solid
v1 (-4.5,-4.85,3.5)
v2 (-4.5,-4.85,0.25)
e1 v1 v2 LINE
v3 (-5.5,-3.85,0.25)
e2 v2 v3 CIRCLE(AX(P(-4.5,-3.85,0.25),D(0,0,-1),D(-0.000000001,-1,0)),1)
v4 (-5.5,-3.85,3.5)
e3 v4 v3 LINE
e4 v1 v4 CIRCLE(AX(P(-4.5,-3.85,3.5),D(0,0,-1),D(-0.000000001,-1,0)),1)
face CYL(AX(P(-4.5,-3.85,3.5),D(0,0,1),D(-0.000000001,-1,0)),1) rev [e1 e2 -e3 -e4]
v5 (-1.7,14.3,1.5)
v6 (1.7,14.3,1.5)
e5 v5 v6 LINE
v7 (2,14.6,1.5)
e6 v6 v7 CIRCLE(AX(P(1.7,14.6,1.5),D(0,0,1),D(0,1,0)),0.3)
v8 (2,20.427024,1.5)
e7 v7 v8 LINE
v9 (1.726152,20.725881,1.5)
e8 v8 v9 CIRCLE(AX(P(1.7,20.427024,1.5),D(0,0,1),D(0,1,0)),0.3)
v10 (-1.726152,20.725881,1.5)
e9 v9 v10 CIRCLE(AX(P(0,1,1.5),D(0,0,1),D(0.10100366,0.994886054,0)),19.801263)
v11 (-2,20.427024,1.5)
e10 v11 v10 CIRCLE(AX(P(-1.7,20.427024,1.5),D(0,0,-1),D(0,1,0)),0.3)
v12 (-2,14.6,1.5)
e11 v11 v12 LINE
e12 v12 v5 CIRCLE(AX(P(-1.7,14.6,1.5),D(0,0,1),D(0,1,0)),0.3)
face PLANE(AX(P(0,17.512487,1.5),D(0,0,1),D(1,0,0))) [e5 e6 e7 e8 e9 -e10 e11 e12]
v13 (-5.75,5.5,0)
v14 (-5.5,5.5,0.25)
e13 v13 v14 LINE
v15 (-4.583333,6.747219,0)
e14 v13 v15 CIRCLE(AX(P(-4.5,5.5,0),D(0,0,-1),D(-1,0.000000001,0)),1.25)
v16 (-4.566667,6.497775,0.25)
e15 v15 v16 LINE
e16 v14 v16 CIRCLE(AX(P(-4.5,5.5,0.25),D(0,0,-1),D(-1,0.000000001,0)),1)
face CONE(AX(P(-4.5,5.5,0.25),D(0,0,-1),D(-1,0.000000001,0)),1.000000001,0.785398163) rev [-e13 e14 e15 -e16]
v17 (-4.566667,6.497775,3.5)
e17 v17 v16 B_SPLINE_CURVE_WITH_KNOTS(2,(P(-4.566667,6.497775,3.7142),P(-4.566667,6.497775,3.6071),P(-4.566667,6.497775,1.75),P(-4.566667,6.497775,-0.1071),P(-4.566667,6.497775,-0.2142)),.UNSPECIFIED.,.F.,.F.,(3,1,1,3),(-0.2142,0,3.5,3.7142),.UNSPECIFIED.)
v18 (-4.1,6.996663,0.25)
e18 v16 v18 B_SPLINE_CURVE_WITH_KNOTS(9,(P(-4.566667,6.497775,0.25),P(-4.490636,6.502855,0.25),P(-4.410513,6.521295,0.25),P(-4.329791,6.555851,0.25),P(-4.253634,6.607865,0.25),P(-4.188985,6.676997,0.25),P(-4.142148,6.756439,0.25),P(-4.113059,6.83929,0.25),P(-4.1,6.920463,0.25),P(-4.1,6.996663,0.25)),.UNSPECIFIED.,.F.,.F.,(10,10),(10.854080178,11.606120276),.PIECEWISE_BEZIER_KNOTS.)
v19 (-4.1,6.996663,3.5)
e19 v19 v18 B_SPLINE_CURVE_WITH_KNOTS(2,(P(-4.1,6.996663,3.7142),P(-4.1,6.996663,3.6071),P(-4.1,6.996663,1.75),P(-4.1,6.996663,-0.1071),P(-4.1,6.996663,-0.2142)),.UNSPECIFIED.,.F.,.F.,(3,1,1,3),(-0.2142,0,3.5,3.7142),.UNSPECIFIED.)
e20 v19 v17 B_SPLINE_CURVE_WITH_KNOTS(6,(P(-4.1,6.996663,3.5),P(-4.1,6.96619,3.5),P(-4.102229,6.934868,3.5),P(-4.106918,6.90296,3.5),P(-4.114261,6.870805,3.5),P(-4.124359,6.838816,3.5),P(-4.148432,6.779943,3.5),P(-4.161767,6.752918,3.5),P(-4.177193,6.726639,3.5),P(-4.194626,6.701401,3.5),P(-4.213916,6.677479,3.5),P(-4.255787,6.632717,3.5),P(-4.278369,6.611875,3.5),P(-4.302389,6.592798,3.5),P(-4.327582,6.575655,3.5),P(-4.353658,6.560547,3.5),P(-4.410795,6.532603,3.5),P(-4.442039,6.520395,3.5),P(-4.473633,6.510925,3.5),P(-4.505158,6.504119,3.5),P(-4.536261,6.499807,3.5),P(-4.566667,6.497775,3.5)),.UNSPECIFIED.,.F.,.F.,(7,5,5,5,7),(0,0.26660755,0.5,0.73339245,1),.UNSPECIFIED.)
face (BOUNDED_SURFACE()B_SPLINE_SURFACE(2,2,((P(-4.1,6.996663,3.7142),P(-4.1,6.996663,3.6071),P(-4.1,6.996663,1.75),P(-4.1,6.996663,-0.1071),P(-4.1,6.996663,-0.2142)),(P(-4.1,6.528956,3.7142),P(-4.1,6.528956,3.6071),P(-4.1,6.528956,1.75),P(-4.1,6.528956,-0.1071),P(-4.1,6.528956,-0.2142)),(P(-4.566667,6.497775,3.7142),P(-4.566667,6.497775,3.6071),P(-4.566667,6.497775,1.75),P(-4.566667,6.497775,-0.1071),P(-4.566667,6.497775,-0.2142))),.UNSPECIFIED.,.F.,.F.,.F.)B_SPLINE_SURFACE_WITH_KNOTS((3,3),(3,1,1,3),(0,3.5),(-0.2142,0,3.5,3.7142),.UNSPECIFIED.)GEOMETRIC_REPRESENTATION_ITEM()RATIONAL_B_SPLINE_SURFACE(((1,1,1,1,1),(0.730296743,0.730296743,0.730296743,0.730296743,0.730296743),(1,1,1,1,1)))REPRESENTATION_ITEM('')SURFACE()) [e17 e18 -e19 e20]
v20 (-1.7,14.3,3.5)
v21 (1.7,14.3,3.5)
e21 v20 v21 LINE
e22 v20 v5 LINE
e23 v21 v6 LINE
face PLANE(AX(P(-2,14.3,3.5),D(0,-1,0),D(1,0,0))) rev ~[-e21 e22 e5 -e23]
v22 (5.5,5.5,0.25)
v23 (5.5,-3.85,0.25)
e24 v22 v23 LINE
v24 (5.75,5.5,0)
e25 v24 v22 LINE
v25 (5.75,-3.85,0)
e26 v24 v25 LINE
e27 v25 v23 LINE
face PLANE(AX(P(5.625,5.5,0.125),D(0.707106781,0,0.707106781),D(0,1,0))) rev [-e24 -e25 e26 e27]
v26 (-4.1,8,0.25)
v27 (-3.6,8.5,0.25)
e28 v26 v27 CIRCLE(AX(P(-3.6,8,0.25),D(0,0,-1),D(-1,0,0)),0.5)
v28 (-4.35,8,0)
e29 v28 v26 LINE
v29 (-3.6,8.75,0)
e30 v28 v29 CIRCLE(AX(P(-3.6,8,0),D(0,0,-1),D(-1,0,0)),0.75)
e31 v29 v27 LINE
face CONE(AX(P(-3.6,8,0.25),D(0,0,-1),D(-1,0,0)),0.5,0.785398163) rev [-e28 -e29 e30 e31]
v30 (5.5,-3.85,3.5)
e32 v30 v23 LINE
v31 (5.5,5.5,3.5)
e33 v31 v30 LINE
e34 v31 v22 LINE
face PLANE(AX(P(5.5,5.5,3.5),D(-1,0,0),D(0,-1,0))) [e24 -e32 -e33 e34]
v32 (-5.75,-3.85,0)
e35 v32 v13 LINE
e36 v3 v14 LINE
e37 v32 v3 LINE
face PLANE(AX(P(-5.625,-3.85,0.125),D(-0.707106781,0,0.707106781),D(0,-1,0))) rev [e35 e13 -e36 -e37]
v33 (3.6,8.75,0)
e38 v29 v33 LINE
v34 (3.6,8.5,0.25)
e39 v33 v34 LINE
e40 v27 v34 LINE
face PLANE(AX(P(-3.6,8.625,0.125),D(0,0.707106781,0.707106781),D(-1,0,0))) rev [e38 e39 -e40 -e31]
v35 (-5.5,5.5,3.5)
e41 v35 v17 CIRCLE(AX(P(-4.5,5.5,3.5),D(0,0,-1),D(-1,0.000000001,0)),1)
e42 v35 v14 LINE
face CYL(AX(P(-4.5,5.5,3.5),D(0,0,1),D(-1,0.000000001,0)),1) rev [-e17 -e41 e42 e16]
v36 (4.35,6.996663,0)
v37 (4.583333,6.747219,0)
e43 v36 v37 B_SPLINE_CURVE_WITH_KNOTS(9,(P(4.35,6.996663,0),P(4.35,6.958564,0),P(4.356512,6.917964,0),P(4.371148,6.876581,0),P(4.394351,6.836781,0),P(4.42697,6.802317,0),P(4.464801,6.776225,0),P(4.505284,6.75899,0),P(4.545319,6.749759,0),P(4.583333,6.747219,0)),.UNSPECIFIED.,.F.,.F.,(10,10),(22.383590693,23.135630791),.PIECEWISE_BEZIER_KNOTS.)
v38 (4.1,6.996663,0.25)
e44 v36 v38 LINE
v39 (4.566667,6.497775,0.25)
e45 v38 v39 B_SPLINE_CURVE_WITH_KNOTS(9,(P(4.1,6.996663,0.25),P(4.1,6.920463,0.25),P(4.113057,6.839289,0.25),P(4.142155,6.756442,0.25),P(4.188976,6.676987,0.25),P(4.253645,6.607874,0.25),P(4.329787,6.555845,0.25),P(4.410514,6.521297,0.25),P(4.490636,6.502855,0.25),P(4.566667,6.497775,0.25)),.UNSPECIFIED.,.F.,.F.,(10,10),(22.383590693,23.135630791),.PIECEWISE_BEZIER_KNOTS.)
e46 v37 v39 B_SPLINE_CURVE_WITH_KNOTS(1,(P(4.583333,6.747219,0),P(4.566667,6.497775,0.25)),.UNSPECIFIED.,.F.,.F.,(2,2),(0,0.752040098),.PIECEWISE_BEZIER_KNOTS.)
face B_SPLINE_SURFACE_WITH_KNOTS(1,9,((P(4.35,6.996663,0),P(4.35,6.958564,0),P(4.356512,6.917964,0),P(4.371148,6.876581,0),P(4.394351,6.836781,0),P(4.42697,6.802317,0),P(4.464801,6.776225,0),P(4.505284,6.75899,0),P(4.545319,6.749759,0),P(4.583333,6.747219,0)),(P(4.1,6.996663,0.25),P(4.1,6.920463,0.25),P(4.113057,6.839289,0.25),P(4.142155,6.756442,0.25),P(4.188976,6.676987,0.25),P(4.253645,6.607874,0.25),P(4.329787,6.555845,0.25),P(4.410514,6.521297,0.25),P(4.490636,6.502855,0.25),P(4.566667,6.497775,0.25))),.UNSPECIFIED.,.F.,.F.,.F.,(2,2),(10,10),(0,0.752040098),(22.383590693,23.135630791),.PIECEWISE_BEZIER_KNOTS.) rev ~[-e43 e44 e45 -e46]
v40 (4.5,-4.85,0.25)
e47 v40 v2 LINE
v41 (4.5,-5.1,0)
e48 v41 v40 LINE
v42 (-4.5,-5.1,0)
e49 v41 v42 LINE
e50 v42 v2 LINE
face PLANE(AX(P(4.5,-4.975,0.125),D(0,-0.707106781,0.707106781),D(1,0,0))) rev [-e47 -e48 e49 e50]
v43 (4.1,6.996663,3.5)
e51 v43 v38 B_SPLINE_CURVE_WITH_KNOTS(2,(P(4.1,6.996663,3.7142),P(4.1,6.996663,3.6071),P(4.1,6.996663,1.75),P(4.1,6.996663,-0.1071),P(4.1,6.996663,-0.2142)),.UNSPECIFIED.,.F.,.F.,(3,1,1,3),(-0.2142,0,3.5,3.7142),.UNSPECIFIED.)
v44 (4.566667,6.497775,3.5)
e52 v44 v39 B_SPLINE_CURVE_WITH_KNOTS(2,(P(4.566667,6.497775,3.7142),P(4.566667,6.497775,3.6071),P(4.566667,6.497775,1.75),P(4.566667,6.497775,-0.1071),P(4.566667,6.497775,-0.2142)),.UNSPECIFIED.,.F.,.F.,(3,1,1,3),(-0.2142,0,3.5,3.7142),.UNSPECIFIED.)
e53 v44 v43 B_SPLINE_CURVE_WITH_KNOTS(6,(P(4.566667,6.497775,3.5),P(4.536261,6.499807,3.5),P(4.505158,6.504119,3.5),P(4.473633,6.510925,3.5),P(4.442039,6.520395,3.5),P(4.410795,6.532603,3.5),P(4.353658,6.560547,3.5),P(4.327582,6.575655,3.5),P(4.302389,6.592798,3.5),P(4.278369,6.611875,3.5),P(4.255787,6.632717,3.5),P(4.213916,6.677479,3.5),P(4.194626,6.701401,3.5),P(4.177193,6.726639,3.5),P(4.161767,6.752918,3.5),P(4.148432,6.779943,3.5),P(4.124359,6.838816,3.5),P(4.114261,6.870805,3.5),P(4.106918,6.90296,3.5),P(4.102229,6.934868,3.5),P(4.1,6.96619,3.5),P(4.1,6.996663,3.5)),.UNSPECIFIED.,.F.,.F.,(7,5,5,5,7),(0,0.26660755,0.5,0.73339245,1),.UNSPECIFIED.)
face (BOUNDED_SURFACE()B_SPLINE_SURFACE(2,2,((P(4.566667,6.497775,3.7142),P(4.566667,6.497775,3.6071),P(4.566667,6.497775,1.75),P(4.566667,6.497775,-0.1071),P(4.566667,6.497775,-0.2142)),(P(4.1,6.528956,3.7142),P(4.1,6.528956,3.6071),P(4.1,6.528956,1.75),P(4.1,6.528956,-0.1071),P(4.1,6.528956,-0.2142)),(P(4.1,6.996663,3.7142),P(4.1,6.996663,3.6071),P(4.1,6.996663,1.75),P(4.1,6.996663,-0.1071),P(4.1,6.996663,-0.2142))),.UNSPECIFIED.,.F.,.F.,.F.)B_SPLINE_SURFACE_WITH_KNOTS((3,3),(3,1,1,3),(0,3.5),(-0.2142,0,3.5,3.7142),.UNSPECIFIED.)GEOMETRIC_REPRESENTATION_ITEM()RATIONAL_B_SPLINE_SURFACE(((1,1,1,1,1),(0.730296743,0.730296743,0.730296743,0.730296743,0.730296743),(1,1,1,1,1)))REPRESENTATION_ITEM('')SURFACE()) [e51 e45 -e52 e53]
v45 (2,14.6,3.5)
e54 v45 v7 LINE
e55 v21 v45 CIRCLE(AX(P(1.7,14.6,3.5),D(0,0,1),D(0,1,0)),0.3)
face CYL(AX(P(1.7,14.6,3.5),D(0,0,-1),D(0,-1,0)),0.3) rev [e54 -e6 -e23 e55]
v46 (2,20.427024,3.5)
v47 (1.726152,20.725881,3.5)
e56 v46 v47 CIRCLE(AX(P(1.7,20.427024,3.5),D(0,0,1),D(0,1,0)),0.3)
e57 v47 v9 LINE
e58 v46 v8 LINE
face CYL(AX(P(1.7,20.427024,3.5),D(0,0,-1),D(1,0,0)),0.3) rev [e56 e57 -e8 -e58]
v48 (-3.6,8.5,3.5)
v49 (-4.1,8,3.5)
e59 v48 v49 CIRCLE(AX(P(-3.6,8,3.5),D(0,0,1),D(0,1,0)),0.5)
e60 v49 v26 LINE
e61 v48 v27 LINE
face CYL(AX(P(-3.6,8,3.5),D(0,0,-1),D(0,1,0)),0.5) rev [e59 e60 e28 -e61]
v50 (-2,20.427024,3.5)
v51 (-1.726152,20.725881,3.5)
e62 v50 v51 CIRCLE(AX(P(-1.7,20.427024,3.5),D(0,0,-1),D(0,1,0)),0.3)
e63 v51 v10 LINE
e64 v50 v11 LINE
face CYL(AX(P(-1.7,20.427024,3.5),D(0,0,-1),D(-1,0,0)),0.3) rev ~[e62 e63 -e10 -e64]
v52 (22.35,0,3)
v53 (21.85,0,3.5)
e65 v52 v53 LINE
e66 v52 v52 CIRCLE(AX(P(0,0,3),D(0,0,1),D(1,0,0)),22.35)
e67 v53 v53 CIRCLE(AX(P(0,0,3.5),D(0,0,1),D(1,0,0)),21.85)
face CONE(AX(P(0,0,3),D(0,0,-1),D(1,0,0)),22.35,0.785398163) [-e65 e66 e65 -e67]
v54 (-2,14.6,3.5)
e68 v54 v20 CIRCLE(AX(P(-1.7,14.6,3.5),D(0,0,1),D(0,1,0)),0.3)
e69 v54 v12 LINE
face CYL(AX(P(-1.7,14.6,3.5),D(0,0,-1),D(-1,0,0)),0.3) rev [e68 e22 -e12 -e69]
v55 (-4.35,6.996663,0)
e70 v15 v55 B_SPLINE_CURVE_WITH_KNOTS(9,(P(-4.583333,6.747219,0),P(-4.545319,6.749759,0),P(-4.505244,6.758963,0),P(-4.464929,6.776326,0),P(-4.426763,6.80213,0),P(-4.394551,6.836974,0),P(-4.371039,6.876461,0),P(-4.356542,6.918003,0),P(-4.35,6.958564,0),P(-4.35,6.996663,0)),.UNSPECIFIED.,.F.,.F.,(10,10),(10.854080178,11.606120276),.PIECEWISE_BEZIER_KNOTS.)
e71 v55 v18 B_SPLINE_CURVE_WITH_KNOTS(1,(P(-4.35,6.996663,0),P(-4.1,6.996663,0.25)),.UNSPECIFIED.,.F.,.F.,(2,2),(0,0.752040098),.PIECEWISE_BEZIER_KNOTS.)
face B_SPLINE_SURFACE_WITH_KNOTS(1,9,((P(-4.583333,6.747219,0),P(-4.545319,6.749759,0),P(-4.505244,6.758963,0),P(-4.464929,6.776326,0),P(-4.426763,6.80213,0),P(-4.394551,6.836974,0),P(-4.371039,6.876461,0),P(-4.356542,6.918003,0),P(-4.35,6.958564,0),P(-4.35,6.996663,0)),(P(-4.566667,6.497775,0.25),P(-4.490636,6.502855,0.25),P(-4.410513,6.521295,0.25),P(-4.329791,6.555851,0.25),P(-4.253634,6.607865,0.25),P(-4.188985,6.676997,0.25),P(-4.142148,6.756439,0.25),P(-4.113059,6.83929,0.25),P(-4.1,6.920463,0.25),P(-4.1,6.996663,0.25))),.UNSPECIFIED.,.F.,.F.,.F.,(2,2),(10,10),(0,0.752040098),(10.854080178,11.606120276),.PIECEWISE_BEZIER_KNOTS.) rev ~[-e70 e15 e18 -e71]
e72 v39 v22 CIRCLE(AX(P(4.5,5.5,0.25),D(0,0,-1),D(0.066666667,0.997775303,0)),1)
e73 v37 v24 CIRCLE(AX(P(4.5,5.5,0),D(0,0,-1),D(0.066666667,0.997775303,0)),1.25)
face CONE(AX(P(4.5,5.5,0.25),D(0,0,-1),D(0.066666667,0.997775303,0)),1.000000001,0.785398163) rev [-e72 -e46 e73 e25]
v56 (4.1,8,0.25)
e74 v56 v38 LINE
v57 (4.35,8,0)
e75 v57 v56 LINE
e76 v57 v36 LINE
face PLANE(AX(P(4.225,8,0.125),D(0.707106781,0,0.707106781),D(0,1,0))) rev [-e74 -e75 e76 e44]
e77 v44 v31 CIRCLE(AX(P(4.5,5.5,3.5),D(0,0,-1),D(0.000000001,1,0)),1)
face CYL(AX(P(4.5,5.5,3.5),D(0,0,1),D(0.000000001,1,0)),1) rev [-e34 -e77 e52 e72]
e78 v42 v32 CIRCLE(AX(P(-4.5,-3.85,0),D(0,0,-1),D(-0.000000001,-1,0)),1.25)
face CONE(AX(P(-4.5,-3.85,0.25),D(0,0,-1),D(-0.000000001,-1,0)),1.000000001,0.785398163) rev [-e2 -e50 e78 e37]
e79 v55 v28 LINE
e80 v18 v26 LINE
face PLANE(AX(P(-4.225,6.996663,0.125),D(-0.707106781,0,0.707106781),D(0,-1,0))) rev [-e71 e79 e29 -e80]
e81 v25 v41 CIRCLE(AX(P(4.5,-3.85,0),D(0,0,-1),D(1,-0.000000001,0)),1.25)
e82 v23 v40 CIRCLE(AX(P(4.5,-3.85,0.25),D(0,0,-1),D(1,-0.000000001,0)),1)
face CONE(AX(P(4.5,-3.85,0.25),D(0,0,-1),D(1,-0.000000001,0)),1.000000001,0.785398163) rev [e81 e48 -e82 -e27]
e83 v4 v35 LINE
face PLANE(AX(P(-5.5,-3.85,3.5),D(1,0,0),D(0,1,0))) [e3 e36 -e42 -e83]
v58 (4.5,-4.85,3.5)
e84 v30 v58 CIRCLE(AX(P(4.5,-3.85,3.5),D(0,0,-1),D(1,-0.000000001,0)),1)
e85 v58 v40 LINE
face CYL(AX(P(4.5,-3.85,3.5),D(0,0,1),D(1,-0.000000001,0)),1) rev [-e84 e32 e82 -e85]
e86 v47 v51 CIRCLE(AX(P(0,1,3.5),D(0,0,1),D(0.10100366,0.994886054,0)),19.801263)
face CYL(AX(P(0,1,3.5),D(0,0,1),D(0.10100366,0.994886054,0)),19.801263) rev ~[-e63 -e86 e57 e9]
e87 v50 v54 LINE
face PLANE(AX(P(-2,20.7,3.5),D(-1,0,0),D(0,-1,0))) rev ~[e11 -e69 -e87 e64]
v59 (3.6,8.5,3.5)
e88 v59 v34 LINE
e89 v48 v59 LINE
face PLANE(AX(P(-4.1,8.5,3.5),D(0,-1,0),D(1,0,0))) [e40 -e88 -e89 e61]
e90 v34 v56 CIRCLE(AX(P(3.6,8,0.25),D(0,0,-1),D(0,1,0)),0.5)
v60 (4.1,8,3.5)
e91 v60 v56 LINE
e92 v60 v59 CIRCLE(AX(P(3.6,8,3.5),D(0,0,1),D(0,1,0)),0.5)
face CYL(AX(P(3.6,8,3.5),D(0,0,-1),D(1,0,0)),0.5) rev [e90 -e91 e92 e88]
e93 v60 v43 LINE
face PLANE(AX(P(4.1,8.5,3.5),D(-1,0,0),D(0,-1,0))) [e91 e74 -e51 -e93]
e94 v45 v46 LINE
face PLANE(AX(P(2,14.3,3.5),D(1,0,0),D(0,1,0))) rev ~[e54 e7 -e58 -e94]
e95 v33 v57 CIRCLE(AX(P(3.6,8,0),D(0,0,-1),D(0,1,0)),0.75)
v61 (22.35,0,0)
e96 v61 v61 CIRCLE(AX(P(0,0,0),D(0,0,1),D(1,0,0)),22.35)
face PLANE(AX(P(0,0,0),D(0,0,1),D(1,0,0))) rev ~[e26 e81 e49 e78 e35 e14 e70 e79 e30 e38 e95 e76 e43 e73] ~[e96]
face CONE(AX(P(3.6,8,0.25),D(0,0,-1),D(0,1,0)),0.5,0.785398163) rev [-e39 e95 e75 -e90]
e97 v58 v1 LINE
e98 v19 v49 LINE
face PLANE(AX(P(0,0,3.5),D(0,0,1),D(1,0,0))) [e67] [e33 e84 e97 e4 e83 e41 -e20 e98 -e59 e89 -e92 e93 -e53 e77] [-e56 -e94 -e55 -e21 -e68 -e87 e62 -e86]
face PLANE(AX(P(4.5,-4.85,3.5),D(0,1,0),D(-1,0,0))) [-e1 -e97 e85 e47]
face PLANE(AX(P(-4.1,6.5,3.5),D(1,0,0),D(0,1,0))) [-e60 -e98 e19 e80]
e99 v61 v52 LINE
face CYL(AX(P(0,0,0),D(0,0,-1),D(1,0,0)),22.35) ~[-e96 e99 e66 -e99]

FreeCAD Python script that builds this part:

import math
import FreeCAD as App
import Part
import Sketcher

V = App.Vector
Q = App.Units.Quantity


def edges_at(feature, points):
    """Names of the edges that pass closest to the given points."""
    edges = feature.Shape.Edges
    near = lambda p: min(range(len(edges)), key=lambda i: edges[i].distToShape(Part.Vertex(*p))[0])
    return sorted({f"Edge{near(p) + 1}" for p in points})


def add_polygon(sketch, points):
    """Adds a closed chain of lines whose ends are joined by coincident constraints."""
    first, n = sketch.GeometryCount, len(points)
    for a, b in zip(points, points[1:] + points[:1]):
        sketch.addGeometry(Part.LineSegment(App.Vector(*a, 0), App.Vector(*b, 0)), False)
    for i in range(n):
        sketch.addConstraint(Sketcher.Constraint("Coincident", first + i, 2, first + (i + 1) % n, 1))

doc = App.newDocument("Part")
body = doc.addObject("PartDesign::Body", "Body")

sketch1 = body.newObject("Sketcher::SketchObject", "Sketch")
sketch1.AttachmentSupport = (doc.getObject("XY_Plane"), [""])
sketch1.MapMode = "FlatFace"
sketch1.addGeometry(Part.Circle(V(0, 0, 0), V(0, 0, 1), 22), False)
sketch1.addConstraint([
    Sketcher.Constraint("Coincident", 0, 3, -1, 1),
    Sketcher.Constraint("Diameter", 0, Q("44.7 mm")),
])
pad1 = body.newObject("PartDesign::Pad", "Pad")
pad1.Profile = sketch1
pad1.Length = 3.5

sketch2 = body.newObject("Sketcher::SketchObject", "Sketch001")
sketch2.AttachmentSupport = (doc.getObject("XY_Plane"), [""])
sketch2.MapMode = "FlatFace"
sketch2.AttachmentOffset = App.Placement(V(0, 0, 3.5), App.Rotation())
sketch2.addGeometry([
    Part.ArcOfCircle(Part.Circle(V(-4.5, 5.5, 0), V(0, 0, 1), 1), math.radians(90), math.radians(180)),
    Part.LineSegment(V(-5.5, 5.5, 0), V(-5.5, -3.9, 0)),
    Part.ArcOfCircle(Part.Circle(V(-4.5, -3.8, 0), V(0, 0, 1), 1), math.radians(-180), math.radians(-90)),
    Part.LineSegment(V(-4.5, -4.8, 0), V(4.5, -4.8, 0)),
    Part.ArcOfCircle(Part.Circle(V(4.5, -3.8, 0), V(0, 0, 1), 1), math.radians(-90), math.radians(0)),
    Part.LineSegment(V(5.5, -3.9, 0), V(5.5, 5.5, 0)),
    Part.ArcOfCircle(Part.Circle(V(4.5, 5.5, 0), V(0, 0, 1), 1), math.radians(0), math.radians(90)),
    Part.LineSegment(V(4.5, 6.5, 0), V(-4.5, 6.5, 0)),
], False)
sketch2.addConstraint([
    Sketcher.Constraint("Tangent", 0, 2, 1, 1),
    Sketcher.Constraint("Tangent", 1, 2, 2, 1),
    Sketcher.Constraint("Tangent", 2, 2, 3, 1),
    Sketcher.Constraint("Tangent", 3, 2, 4, 1),
    Sketcher.Constraint("Tangent", 4, 2, 5, 1),
    Sketcher.Constraint("Tangent", 5, 2, 6, 1),
    Sketcher.Constraint("Tangent", 6, 2, 7, 1),
    Sketcher.Constraint("Tangent", 7, 2, 0, 1),
    Sketcher.Constraint("Vertical", 1),
    Sketcher.Constraint("Horizontal", 3),
    Sketcher.Constraint("Vertical", 5),
    Sketcher.Constraint("Horizontal", 7),
    Sketcher.Constraint("Equal", 0, 2),
    Sketcher.Constraint("Equal", 2, 4),
    Sketcher.Constraint("Equal", 4, 6),
    Sketcher.Constraint("Radius", 0, Q("1 mm")),
    Sketcher.Constraint("DistanceX", 3, 1, 3, 2, Q("9 mm")),
    Sketcher.Constraint("DistanceY", 1, 2, 1, 1, Q("9.35 mm")),
    Sketcher.Constraint("DistanceX", 0, 3, -1, 1, Q("4.5 mm")),
    Sketcher.Constraint("DistanceY", -1, 1, 0, 3, Q("5.5 mm")),
])
pocket1 = body.newObject("PartDesign::Pocket", "Pocket")
pocket1.Profile = sketch2
pocket1.Length = 3.5
doc.recompute()

chamfer = body.newObject("PartDesign::Chamfer", "Chamfer")
chamfer.Base = (pocket1, edges_at(pocket1, [(-22.35, 0, 3.5)]))
chamfer.Size = 0.5

sketch3 = body.newObject("Sketcher::SketchObject", "Sketch002")
sketch3.AttachmentSupport = (doc.getObject("XY_Plane"), [""])
sketch3.MapMode = "FlatFace"
sketch3.AttachmentOffset = App.Placement(V(0, 0, 3.5), App.Rotation())
add_polygon(sketch3, [(-4.1, 6.5), (4.1, 6.5), (4.1, 8.5), (-4.1, 8.5)])
sketch3.addConstraint([
    Sketcher.Constraint("Horizontal", 0),
    Sketcher.Constraint("Vertical", 1),
    Sketcher.Constraint("Horizontal", 2),
    Sketcher.Constraint("Vertical", 3),
    Sketcher.Constraint("DistanceY", 1, 1, 1, 2, Q("2 mm")),
    Sketcher.Constraint("DistanceX", 0, 1, 0, 2, Q("8.2 mm")),
    Sketcher.Constraint("DistanceX", -1, 1, 0, 2, Q("4.1 mm")),
    Sketcher.Constraint("DistanceY", -1, 1, 0, 2, Q("6.5 mm")),
])
pocket2 = body.newObject("PartDesign::Pocket", "Pocket001")
pocket2.Profile = sketch3
pocket2.Length = 3.5
doc.recompute()

fillet = body.newObject("PartDesign::Fillet", "Fillet")
fillet.Base = (pocket2, edges_at(pocket2, [
    (4.1, 6.5, 1.75),
    (-4.1, 6.5, 1.75),
    (4.1, 8.5, 1.75),
    (-4.1, 8.5, 1.75),
]))
fillet.Radius = 0.5
doc.recompute()

chamfer2 = body.newObject("PartDesign::Chamfer", "Chamfer001")
chamfer2.Base = (fillet, edges_at(fillet, [
    (-5.5, 0.825, 0),
    (0, -4.85, 0),
    (5.5, 0.825, 0),
    (-5.23, 6.183, 0),
    (5.207, -4.557, 0),
    (-5.207, -4.557, 0),
    (4.1, 7.498, 0),
    (5.23, 6.183, 0),
    (-4.1, 7.498, 0),
    (0, 8.5, 0),
    (-4.235, 6.655, 0),
    (4.235, 6.655, 0),
    (3.954, 8.354, 0),
    (-3.954, 8.354, 0),
]))
chamfer2.Size = 0.25

sketch4 = body.newObject("Sketcher::SketchObject", "Sketch003")
sketch4.AttachmentSupport = (doc.getObject("XY_Plane"), [""])
sketch4.MapMode = "FlatFace"
sketch4.AttachmentOffset = App.Placement(V(0, 0, 3.5), App.Rotation())
sketch4.addGeometry([
    Part.LineSegment(V(-2, 20.7, 0), V(-2, 14.3, 0)),
    Part.LineSegment(V(-2, 14.3, 0), V(2, 14.3, 0)),
    Part.LineSegment(V(2, 14.3, 0), V(2, 20.7, 0)),
    Part.ArcOfCircle(Part.Circle(V(0, 1, 0), V(0, 0, 1), 19.8), math.radians(84.2), math.radians(95.8)),
], False)
sketch4.addConstraint([
    Sketcher.Constraint("Coincident", 0, 2, 1, 1),
    Sketcher.Constraint("Coincident", 1, 2, 2, 1),
    Sketcher.Constraint("Coincident", 2, 2, 3, 1),
    Sketcher.Constraint("Coincident", 3, 2, 0, 1),
    Sketcher.Constraint("Vertical", 0),
    Sketcher.Constraint("Horizontal", 1),
    Sketcher.Constraint("Vertical", 2),
    Sketcher.Constraint("Symmetric", 2, 2, 3, 2, -2),
    Sketcher.Constraint("DistanceX", 1, 1, 1, 2, Q("4 mm")),
    Sketcher.Constraint("DistanceY", 0, 2, 0, 1, Q("6.4 mm")),
    Sketcher.Constraint("DistanceY", -1, 1, 3, 3, Q("1 mm")),
    Sketcher.Constraint("DistanceY", -1, 1, 0, 2, Q("14.3 mm")),
])
pocket3 = body.newObject("PartDesign::Pocket", "Pocket002")
pocket3.Profile = sketch4
pocket3.Length = 2
doc.recompute()

fillet2 = body.newObject("PartDesign::Fillet", "Fillet001")
fillet2.Base = (pocket3, edges_at(pocket3, [
    (-2, 20.7, 2.5),
    (2, 20.7, 2.5),
    (2, 14.3, 2.5),
    (-2, 14.3, 2.5),
]))
fillet2.Radius = 0.3

doc.recompute()
